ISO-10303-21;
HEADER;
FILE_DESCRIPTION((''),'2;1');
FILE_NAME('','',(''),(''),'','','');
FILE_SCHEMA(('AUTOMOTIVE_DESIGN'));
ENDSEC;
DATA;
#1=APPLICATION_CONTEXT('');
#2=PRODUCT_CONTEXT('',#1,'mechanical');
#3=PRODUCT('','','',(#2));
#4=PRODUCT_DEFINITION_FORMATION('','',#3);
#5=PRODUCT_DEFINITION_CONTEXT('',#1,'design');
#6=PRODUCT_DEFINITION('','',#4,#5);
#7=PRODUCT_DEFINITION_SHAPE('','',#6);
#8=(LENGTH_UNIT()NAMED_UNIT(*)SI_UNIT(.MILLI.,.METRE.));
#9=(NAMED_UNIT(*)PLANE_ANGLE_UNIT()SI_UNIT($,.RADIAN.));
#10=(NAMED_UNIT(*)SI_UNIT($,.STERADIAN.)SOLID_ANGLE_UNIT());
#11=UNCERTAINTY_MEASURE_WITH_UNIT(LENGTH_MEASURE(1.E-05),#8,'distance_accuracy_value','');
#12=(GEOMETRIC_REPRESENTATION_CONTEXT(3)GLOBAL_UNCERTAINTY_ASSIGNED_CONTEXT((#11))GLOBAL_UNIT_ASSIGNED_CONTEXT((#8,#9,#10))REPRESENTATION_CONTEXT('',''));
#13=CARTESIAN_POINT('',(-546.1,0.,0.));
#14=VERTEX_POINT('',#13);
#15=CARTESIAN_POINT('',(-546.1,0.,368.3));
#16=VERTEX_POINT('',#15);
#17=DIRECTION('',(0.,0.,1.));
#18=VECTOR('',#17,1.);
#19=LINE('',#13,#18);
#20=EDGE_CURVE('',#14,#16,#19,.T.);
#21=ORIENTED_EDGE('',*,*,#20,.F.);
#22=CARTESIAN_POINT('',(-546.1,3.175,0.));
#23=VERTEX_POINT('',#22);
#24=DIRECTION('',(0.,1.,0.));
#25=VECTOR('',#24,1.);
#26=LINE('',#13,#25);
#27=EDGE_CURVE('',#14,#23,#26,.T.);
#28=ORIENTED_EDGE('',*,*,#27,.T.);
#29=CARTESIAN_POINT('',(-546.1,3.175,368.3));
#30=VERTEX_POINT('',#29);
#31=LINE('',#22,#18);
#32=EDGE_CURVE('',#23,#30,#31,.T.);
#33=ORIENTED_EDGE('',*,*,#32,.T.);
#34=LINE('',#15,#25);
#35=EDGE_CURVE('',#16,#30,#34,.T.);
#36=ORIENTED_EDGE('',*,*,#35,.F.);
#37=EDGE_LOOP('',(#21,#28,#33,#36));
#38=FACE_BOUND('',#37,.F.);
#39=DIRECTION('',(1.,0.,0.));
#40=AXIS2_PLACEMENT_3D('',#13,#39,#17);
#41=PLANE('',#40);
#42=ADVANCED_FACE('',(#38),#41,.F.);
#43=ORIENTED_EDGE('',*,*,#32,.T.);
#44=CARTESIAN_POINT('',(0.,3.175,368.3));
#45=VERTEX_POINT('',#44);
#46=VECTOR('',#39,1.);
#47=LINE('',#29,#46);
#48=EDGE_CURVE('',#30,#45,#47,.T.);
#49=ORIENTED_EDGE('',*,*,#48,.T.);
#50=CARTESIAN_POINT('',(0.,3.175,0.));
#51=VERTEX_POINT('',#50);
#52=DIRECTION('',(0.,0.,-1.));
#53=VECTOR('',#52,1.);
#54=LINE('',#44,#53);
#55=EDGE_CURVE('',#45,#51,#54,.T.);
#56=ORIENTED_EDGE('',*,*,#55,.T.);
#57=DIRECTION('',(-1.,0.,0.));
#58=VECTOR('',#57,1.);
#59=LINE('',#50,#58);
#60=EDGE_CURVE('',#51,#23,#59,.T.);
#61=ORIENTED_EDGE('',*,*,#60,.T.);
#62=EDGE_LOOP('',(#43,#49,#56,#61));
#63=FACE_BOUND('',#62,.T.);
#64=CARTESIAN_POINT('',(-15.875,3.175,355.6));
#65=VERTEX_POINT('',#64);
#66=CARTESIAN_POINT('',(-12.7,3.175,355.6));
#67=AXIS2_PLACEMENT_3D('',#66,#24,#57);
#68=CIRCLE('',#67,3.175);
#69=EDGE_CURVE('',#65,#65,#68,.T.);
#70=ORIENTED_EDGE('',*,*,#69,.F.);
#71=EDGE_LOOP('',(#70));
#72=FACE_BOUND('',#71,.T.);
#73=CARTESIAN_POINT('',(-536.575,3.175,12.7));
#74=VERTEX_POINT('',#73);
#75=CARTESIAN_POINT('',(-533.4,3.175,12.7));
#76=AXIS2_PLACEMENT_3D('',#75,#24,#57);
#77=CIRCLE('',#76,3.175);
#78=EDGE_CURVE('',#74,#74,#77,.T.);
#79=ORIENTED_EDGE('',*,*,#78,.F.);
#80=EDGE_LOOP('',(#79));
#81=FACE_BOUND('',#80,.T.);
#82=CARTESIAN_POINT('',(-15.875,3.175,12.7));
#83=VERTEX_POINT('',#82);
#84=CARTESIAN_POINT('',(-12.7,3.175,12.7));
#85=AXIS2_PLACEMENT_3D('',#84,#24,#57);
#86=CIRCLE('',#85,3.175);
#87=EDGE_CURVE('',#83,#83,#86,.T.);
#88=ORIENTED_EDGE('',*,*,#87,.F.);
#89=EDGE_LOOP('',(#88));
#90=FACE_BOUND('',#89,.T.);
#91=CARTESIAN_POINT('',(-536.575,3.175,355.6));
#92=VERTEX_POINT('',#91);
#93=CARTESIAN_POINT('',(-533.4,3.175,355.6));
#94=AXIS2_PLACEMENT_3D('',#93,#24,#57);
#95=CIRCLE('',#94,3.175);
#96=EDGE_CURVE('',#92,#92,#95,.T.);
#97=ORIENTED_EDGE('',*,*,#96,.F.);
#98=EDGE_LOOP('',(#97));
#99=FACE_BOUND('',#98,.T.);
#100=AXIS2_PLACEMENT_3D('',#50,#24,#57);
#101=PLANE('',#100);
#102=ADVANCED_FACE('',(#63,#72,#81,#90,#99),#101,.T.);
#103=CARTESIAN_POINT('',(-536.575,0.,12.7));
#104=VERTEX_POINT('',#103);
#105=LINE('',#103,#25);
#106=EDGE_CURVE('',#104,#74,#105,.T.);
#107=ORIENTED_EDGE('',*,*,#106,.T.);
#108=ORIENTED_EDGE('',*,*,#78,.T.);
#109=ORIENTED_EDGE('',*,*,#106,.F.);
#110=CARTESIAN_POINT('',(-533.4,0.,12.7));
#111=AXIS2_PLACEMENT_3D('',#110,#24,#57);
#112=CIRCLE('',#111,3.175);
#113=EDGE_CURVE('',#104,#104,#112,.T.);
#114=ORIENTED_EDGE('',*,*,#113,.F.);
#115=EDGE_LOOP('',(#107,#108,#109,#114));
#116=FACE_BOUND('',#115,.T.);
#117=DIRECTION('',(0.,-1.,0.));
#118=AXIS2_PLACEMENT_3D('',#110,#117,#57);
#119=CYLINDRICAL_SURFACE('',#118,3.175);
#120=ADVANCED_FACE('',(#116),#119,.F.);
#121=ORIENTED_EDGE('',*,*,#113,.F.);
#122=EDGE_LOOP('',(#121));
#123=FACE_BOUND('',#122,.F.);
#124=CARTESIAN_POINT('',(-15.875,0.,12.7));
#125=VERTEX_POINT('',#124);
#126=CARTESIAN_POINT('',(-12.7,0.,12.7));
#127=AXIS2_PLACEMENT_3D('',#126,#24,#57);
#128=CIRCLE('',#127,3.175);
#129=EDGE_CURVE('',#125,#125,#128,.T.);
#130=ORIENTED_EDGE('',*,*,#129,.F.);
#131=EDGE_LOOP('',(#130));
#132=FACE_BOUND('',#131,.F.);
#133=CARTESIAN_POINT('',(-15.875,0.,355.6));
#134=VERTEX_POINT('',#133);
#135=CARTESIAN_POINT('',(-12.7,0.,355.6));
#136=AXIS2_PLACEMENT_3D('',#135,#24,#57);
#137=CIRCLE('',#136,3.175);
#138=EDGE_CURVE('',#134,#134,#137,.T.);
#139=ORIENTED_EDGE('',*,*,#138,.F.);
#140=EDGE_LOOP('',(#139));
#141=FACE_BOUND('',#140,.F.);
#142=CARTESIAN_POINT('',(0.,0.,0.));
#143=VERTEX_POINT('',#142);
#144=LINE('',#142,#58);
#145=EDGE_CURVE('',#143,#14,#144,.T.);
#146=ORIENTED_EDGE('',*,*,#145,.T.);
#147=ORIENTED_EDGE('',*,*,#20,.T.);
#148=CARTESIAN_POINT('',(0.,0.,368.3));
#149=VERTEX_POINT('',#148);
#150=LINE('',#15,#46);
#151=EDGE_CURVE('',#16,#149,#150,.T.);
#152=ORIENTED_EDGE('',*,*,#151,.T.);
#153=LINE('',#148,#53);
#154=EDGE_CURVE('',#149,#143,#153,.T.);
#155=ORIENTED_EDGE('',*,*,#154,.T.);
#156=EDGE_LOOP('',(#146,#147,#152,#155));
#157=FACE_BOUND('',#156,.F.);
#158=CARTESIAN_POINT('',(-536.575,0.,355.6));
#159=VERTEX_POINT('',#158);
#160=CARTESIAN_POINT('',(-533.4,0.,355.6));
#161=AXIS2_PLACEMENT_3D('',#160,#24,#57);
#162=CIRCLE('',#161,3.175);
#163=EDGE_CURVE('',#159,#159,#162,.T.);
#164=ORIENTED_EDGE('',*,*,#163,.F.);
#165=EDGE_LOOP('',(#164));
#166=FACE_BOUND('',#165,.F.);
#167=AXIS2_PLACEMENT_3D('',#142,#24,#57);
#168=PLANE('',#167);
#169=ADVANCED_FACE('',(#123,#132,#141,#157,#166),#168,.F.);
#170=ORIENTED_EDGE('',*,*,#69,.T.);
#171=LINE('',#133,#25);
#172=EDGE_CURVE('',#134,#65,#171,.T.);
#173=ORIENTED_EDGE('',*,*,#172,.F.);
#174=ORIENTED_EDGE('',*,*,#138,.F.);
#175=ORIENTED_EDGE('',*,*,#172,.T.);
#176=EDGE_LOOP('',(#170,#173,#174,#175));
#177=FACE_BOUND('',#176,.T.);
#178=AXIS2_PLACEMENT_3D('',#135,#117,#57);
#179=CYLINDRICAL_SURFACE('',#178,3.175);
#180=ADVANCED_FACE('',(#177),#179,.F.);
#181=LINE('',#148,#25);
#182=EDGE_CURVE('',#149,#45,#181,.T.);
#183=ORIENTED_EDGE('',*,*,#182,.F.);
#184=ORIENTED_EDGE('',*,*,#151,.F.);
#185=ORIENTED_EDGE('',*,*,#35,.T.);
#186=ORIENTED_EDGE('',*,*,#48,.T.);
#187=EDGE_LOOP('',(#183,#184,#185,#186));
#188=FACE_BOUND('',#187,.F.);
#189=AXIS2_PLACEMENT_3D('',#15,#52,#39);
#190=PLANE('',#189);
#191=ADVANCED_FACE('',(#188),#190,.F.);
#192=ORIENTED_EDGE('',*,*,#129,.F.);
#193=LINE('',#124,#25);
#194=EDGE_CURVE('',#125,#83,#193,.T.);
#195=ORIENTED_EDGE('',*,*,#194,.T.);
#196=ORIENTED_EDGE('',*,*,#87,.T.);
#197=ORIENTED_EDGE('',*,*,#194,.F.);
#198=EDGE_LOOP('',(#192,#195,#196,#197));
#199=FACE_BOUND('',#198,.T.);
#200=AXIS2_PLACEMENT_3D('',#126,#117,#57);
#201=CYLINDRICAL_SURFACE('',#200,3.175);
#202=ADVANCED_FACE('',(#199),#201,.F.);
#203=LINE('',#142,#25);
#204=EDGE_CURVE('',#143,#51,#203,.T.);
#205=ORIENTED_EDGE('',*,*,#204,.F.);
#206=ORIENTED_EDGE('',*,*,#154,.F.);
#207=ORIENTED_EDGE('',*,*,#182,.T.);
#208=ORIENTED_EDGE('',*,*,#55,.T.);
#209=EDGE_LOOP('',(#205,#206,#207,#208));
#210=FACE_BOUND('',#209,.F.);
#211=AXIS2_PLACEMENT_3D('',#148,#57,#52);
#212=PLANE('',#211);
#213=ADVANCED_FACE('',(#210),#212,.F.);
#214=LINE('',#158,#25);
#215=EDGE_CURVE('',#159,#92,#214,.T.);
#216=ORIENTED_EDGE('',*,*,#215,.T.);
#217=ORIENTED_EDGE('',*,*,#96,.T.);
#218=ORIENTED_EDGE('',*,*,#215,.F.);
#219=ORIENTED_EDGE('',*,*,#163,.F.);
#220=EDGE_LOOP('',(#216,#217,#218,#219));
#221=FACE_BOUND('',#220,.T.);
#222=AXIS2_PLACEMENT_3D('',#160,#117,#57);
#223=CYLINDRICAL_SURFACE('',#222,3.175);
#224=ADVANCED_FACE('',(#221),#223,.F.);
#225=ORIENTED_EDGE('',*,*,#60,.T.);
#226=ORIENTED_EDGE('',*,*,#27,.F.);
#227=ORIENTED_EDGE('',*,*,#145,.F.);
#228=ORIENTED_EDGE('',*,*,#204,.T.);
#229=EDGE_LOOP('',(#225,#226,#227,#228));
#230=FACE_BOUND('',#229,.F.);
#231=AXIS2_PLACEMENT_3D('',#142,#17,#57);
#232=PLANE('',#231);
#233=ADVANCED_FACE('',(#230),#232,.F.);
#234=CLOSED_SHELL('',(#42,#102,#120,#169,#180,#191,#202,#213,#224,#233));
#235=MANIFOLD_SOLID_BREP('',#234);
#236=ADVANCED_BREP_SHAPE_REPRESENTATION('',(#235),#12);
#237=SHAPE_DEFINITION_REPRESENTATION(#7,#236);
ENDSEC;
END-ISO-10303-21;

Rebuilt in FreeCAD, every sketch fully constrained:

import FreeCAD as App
import Part
import Sketcher
from FreeCAD import Vector
Q = App.Units.Quantity


def add_polygon(sketch, points):
    """Adds a closed chain of lines whose ends are joined by coincident constraints."""
    first, n = sketch.GeometryCount, len(points)
    for a, b in zip(points, points[1:] + points[:1]):
        sketch.addGeometry(Part.LineSegment(App.Vector(*a, 0), App.Vector(*b, 0)), False)
    for i in range(n):
        sketch.addConstraint(Sketcher.Constraint("Coincident", first + i, 2, first + (i + 1) % n, 1))

doc = App.newDocument("Part")
params = doc.addObject("Spreadsheet::Sheet", "Params")
for row, (alias, value) in enumerate([
    ("sketch1_diameter", "0.25 in"),
    ("sketch1_width", "21.5 in"),
    ("sketch1_height", "14.5 in"),
    ("pad1_length", "0.125 in"),
], start=1):
    params.set(f"A{row}", alias)
    params.set(f"B{row}", "=" + value)
    params.setAlias(f"B{row}", alias)

body = doc.addObject("PartDesign::Body", "Body")

# Sketch on XZ plane
sketch1 = body.newObject("Sketcher::SketchObject", "Sketch")
sketch1.AttachmentSupport = (doc.getObject("XZ_Plane"), [""])
sketch1.MapMode = "FlatFace"
add_polygon(sketch1, [(0, 368.3), (0, 0), (-546.1, 0), (-546.1, 368.3)])  # lines 0-3
sketch1.addGeometry(Part.Circle(Vector(-12.7, 12.7, 0), Vector(0, 0, 1), 3.175), False)  # 4
sketch1.addGeometry(Part.Circle(Vector(-533.4, 12.7, 0), Vector(0, 0, 1), 3.175), False)  # 5
sketch1.addGeometry(Part.Circle(Vector(-12.7, 355.6, 0), Vector(0, 0, 1), 3.175), False)  # 6
sketch1.addGeometry(Part.Circle(Vector(-533.4, 355.6, 0), Vector(0, 0, 1), 3.175), False)  # 7
sketch1.addConstraint([
    Sketcher.Constraint("Vertical", 0),
    Sketcher.Constraint("Horizontal", 1),
    Sketcher.Constraint("Vertical", 2),
    Sketcher.Constraint("Horizontal", 3),
    Sketcher.Constraint("Coincident", 0, 2, -1, 1),
    Sketcher.Constraint("Equal", 4, 5),
    Sketcher.Constraint("Equal", 5, 6),
    Sketcher.Constraint("Equal", 6, 7),
    Sketcher.Constraint("Horizontal", 4, 3, 5, 3),
    Sketcher.Constraint("Horizontal", 6, 3, 7, 3),
    Sketcher.Constraint("Vertical", 4, 3, 6, 3),
    Sketcher.Constraint("Vertical", 5, 3, 7, 3),
    Sketcher.Constraint("Diameter", 4, Q("0.25 in")),
    Sketcher.Constraint("DistanceX", 1, 2, 1, 1, Q("21.5 in")),
    Sketcher.Constraint("DistanceY", 0, 2, 0, 1, Q("14.5 in")),
    Sketcher.Constraint("DistanceX", 4, 3, -1, 1, Q("0.5 in")),
    Sketcher.Constraint("DistanceY", -1, 1, 4, 3, Q("0.5 in")),
    Sketcher.Constraint("DistanceX", 1, 2, 5, 3, Q("0.5 in")),
    Sketcher.Constraint("DistanceY", 7, 3, 2, 2, Q("0.5 in")),
])
sketch1.setExpression("Constraints[16]", "Params.sketch1_diameter")
sketch1.setExpression("Constraints[17]", "Params.sketch1_width")
sketch1.setExpression("Constraints[18]", "Params.sketch1_height")
pad1 = body.newObject("PartDesign::Pad", "Pad")
pad1.Profile = sketch1
pad1.setExpression("Length", "Params.pad1_length")
pad1.Reversed = True

doc.recompute()
